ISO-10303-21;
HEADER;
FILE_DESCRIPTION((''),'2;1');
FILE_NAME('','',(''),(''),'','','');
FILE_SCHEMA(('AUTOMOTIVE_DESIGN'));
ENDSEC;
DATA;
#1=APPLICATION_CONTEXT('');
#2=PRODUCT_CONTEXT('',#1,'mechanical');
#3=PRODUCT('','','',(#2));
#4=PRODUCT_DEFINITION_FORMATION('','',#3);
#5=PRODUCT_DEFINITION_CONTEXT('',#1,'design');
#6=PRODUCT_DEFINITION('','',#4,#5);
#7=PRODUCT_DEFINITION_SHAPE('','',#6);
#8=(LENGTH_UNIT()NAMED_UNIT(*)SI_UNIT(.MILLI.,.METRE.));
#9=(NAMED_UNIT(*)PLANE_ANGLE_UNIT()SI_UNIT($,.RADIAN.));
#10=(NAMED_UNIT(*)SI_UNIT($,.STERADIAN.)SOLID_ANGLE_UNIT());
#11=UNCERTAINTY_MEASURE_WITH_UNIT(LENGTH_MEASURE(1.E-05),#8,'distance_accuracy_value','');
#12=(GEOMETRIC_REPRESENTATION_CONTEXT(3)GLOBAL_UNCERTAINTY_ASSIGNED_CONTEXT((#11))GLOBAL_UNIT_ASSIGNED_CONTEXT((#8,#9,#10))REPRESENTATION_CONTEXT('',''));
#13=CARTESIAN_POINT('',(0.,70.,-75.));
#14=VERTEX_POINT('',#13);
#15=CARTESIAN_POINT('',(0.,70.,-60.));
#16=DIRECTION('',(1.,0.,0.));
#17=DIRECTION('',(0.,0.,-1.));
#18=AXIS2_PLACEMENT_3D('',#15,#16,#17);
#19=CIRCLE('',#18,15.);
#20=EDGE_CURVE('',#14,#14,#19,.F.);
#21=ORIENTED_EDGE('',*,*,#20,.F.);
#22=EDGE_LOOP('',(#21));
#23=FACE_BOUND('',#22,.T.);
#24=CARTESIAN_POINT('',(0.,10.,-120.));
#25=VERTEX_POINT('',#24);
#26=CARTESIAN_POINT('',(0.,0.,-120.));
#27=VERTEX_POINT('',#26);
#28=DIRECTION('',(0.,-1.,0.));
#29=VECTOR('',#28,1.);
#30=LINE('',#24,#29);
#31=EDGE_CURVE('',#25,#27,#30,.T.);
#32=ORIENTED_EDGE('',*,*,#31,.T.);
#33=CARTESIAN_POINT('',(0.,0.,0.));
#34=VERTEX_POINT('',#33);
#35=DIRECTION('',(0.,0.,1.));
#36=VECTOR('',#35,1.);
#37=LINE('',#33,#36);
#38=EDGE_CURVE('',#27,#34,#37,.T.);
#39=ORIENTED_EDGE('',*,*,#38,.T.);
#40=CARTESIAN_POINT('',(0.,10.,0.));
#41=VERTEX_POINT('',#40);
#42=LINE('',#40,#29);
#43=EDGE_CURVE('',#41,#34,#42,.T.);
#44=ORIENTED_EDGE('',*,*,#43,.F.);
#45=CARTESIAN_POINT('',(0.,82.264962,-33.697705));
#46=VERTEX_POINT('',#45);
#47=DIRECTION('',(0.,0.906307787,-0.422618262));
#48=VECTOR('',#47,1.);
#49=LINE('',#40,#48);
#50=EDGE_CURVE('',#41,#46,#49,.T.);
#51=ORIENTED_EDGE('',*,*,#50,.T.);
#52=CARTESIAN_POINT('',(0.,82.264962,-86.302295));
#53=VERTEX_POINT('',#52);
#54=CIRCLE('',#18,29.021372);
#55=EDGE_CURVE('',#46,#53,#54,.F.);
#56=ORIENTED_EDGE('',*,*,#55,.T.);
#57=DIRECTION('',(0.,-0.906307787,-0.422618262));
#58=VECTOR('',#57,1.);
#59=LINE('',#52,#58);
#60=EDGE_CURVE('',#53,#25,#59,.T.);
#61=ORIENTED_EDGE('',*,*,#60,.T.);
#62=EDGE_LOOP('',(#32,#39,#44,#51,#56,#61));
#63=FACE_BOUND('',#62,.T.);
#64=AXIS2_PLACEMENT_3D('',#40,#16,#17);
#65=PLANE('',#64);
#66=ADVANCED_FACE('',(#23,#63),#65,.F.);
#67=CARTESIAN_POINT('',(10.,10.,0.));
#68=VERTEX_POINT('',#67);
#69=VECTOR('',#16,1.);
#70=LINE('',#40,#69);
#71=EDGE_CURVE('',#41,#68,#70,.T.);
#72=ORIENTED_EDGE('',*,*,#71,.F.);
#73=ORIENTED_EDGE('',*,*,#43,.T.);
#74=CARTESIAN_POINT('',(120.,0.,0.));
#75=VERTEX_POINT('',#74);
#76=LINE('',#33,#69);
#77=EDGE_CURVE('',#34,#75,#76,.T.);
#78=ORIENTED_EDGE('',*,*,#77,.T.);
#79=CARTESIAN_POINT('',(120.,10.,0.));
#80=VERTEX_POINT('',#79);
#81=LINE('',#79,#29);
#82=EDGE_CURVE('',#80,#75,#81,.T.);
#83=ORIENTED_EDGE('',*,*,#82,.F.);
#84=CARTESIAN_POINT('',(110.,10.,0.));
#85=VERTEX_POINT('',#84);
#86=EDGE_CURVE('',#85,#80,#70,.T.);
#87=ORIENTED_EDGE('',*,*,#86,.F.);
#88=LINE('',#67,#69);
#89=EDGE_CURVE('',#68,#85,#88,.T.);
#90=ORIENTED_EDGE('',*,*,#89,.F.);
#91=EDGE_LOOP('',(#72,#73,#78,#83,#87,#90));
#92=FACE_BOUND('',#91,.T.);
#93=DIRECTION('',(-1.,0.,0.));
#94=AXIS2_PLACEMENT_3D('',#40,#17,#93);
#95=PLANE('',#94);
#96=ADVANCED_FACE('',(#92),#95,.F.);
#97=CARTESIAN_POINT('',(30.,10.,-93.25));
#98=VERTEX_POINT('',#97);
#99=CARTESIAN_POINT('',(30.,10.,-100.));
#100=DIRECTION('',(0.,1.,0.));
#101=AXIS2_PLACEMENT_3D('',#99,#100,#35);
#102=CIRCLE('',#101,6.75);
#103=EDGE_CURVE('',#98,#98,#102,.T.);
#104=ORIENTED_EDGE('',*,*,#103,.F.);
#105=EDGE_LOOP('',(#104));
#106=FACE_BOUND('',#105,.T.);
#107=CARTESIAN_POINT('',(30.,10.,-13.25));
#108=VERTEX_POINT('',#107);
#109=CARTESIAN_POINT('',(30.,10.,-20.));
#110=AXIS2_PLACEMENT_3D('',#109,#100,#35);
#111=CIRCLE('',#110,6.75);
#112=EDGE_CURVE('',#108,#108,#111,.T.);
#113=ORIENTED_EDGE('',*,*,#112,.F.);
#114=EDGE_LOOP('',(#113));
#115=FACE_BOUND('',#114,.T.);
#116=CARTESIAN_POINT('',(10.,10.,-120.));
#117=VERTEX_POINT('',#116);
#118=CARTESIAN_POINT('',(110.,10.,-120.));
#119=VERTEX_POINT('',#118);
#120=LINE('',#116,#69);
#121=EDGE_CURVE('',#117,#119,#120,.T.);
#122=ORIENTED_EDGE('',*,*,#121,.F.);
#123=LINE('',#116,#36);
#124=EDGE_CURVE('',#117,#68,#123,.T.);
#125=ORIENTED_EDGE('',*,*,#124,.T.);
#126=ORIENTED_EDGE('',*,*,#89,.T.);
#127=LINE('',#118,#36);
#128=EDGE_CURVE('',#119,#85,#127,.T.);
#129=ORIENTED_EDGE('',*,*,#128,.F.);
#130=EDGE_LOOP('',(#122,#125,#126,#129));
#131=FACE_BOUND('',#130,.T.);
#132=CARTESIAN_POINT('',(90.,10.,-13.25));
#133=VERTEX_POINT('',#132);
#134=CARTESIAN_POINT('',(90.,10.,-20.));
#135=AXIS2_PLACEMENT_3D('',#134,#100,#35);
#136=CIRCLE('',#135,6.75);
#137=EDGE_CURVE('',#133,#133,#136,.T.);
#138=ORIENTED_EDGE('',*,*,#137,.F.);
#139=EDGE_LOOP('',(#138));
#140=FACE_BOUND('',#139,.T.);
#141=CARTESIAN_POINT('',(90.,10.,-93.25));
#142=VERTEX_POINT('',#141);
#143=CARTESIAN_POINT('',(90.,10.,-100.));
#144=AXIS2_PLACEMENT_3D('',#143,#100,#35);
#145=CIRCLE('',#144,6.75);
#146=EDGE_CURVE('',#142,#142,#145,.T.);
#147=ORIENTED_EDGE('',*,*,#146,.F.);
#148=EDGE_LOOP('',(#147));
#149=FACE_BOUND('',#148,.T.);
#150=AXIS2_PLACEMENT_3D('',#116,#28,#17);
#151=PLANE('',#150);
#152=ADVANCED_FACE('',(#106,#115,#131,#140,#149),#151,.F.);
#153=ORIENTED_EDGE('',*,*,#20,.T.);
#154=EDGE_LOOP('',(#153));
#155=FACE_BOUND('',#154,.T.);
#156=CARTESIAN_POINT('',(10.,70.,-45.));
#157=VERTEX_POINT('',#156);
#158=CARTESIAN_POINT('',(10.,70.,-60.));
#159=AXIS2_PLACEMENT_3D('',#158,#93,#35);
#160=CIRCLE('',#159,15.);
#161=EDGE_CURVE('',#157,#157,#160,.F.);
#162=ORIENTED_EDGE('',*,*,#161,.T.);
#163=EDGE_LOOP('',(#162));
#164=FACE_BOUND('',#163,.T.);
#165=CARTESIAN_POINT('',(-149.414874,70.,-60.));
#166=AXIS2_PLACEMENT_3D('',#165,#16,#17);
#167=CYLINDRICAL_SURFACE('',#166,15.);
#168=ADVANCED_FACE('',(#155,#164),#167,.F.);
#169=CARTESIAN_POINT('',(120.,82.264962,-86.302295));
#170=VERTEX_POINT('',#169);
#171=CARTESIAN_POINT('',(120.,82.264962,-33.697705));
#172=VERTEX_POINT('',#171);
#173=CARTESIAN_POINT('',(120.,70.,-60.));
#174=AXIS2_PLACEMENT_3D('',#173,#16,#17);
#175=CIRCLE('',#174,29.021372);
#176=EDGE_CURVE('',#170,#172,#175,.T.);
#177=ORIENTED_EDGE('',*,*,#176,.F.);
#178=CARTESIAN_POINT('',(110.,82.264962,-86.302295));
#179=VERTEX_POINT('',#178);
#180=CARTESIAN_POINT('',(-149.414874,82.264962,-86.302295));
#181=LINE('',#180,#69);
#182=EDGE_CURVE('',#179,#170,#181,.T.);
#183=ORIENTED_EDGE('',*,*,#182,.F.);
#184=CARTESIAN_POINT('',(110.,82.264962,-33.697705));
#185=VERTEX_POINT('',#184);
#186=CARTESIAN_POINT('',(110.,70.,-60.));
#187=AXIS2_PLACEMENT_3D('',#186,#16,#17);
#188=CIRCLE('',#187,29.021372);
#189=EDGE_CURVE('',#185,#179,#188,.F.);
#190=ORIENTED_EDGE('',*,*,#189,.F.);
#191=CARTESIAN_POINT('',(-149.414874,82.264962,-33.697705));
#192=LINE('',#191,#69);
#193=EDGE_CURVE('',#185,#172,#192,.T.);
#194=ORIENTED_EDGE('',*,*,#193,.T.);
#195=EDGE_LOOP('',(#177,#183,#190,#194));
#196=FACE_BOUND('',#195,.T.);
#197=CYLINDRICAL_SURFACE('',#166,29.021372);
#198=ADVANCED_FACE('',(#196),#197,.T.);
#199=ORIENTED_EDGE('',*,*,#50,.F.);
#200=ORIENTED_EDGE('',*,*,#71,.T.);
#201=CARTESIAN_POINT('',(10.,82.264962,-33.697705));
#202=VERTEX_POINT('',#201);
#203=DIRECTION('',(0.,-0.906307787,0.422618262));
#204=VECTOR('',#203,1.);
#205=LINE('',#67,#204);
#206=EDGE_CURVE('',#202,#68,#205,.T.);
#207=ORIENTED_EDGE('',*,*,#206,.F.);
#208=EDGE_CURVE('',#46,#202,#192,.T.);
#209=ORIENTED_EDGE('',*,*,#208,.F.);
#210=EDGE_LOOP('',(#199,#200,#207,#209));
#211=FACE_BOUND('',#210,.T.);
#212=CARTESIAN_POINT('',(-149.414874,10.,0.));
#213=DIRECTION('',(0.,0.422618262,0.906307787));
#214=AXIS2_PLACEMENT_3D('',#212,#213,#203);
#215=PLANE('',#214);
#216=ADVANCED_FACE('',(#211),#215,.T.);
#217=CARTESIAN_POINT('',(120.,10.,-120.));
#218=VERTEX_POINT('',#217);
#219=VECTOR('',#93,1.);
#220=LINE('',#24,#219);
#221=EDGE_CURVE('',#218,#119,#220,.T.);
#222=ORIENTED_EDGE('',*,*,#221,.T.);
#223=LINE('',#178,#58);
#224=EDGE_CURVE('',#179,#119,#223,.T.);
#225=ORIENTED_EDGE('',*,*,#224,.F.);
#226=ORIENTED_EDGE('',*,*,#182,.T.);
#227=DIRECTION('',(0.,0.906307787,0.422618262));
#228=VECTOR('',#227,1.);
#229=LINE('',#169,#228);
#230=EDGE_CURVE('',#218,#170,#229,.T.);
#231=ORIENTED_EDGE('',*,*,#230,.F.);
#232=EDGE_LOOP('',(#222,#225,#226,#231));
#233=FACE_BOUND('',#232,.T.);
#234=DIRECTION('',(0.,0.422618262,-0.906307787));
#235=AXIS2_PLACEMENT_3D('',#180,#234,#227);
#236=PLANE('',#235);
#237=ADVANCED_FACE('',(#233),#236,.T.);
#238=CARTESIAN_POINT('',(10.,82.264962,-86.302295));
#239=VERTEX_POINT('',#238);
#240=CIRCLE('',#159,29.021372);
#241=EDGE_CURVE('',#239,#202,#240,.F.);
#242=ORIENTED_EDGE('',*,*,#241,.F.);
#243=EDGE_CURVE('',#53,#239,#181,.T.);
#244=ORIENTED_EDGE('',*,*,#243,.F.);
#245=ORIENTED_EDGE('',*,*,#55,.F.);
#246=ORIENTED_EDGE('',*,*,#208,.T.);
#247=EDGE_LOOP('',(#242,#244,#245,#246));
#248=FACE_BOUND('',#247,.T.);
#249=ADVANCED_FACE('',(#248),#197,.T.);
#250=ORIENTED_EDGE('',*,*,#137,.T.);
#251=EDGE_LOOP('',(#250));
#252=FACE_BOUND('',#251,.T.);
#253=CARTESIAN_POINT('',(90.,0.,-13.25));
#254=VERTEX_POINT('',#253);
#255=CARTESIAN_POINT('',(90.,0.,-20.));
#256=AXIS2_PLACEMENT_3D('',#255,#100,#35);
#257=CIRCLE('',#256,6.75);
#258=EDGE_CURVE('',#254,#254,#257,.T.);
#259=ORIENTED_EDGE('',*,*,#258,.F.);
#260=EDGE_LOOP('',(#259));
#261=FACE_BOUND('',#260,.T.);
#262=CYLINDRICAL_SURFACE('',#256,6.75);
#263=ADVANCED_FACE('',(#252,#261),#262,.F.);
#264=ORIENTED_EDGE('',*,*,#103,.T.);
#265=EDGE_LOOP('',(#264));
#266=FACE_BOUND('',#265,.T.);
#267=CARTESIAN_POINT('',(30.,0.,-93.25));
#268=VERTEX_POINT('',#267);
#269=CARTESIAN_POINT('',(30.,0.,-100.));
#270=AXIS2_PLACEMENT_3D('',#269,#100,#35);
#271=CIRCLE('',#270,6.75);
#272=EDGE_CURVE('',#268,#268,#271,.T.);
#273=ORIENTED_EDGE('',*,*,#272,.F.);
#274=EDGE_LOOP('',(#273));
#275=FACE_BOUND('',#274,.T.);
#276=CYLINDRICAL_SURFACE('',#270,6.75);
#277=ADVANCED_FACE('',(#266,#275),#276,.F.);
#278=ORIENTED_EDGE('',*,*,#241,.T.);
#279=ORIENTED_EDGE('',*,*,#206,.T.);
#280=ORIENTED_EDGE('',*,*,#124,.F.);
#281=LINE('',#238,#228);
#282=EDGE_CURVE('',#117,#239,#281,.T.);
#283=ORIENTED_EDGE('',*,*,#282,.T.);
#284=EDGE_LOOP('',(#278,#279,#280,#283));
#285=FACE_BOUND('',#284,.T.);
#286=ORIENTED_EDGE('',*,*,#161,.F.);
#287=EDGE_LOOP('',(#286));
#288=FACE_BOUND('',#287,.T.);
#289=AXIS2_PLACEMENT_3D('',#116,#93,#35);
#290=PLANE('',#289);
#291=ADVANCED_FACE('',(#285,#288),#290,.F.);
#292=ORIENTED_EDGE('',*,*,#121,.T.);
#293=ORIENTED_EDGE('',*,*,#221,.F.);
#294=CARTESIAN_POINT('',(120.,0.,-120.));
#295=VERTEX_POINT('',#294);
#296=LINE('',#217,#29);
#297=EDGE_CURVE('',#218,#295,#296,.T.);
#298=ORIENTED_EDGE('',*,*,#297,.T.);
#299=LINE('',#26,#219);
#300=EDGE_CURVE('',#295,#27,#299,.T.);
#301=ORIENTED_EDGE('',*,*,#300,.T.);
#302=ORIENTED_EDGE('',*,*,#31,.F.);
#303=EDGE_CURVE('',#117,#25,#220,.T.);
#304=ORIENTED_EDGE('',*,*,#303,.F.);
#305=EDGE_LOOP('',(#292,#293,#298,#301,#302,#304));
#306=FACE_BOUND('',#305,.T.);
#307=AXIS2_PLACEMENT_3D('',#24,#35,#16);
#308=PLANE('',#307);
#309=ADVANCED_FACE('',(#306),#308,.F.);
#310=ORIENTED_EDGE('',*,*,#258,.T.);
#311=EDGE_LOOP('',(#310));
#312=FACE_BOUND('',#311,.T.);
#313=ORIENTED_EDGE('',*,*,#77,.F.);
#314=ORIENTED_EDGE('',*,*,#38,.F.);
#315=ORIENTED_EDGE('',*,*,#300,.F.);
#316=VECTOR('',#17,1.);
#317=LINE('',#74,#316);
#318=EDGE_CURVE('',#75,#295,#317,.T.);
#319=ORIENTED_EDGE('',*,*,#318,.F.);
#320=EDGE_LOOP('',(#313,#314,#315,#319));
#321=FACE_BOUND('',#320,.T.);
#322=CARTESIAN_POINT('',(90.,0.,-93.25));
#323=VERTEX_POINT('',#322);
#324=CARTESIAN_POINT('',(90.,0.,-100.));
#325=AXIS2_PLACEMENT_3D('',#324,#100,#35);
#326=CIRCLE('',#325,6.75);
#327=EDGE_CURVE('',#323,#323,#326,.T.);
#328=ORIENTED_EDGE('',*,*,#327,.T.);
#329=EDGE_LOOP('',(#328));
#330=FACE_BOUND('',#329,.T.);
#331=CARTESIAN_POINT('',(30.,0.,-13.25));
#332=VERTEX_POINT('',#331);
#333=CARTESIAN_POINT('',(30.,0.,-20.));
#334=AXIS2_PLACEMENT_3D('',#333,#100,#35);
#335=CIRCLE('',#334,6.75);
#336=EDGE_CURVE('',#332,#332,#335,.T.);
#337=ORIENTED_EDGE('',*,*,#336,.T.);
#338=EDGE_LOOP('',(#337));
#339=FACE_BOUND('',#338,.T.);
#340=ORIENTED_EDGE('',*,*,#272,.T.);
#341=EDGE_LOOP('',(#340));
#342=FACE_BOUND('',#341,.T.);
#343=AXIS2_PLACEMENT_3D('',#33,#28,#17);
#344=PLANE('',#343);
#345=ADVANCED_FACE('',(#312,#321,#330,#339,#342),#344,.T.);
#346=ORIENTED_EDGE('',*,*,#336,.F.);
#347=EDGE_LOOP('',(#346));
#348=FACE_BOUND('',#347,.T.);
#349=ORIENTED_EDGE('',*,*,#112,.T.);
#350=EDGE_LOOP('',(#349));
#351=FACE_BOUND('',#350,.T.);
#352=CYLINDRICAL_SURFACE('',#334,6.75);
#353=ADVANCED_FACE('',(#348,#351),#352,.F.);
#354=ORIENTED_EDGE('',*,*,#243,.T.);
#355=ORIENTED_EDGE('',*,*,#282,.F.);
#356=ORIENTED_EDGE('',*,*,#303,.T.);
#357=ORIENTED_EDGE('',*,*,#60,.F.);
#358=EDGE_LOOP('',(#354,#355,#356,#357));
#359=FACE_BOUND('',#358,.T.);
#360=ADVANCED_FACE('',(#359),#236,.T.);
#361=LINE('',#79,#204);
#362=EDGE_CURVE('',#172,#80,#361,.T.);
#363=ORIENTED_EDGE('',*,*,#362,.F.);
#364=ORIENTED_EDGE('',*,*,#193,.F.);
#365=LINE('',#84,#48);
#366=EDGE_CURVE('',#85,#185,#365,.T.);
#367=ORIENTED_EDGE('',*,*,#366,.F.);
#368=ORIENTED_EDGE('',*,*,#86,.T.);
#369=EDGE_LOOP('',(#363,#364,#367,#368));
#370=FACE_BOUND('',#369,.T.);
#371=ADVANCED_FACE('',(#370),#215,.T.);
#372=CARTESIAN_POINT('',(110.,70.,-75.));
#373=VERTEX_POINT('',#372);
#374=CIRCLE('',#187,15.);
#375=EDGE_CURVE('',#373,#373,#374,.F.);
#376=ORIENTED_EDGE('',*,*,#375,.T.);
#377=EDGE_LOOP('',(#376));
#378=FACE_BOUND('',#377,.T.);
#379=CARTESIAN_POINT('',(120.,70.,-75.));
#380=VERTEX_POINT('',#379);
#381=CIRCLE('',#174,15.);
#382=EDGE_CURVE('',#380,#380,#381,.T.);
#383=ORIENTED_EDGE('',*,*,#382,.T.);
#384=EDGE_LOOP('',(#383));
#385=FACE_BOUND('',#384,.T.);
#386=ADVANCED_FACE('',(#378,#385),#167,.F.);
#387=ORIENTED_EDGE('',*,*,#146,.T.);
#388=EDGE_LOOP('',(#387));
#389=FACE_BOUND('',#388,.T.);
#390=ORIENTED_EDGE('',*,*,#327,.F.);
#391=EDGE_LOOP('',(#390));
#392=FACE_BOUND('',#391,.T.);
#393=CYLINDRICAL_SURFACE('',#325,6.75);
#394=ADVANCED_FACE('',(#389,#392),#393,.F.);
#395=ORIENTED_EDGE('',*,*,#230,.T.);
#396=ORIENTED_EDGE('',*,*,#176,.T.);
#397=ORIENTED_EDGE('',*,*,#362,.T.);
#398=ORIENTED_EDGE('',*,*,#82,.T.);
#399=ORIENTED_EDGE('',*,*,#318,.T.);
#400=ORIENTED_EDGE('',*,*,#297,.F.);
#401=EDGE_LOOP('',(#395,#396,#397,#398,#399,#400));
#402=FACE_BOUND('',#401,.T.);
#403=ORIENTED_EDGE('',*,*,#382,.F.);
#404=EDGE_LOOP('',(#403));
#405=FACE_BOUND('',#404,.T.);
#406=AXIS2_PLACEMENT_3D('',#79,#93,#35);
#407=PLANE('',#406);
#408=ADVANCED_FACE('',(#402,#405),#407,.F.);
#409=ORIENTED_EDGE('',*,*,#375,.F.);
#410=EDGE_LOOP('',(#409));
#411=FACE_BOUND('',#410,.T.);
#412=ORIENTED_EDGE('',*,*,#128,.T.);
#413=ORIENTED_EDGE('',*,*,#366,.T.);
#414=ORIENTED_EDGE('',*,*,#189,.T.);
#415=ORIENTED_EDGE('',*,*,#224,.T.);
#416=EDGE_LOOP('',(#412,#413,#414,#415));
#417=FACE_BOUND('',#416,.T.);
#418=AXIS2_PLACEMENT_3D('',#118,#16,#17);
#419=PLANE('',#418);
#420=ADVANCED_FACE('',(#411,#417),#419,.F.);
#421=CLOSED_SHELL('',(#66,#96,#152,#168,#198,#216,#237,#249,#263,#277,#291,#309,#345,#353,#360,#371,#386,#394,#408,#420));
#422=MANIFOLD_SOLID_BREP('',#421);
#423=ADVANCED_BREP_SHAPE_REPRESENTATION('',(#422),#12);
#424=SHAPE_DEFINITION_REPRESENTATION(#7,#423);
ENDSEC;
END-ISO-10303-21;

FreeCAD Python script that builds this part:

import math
import FreeCAD as App
import Part
import Sketcher

V = App.Vector
Q = App.Units.Quantity


def add_polygon(sketch, points):
    """Adds a closed chain of lines whose ends are joined by coincident constraints."""
    first, n = sketch.GeometryCount, len(points)
    for a, b in zip(points, points[1:] + points[:1]):
        sketch.addGeometry(Part.LineSegment(App.Vector(*a, 0), App.Vector(*b, 0)), False)
    for i in range(n):
        sketch.addConstraint(Sketcher.Constraint("Coincident", first + i, 2, first + (i + 1) % n, 1))

doc = App.newDocument("Part")
body = doc.addObject("PartDesign::Body", "Body")

sketch1 = body.newObject("Sketcher::SketchObject", "Sketch")
sketch1.AttachmentSupport = (doc.getObject("XZ_Plane"), [""])
sketch1.MapMode = "FlatFace"
add_polygon(sketch1, [(0, -120), (0, 0), (120, 0), (120, -120)])
sketch1.addConstraint([
    Sketcher.Constraint("Vertical", 0),
    Sketcher.Constraint("Horizontal", 1),
    Sketcher.Constraint("Vertical", 2),
    Sketcher.Constraint("Horizontal", 3),
    Sketcher.Constraint("Coincident", 0, 2, -1, 1),
    Sketcher.Constraint("Equal", 3, 0),
    Sketcher.Constraint("DistanceX", 1, 1, 1, 2, Q("120 mm")),
])
pad1 = body.newObject("PartDesign::Pad", "Pad")
pad1.Profile = sketch1
pad1.Length = 10
pad1.Reversed = True

sketch2 = body.newObject("Sketcher::SketchObject", "Sketch001")
sketch2.AttachmentSupport = (doc.getObject("YZ_Plane"), [""])
sketch2.MapMode = "FlatFace"
sketch2.AttachmentOffset = App.Placement(V(0, 0, 120), App.Rotation())
sketch2.addGeometry([
    Part.LineSegment(V(10, -120, 0), V(82, -86, 0)),
    Part.ArcOfCircle(Part.Circle(V(70, -60, 0), V(0, 0, 1), 29), math.radians(-65), math.radians(65)),
    Part.LineSegment(V(82, -34, 0), V(10, 0, 0)),
    Part.LineSegment(V(10, 0, 0), V(10, -120, 0)),
    Part.Circle(V(70, -60, 0), V(0, 0, 1), 15),
], False)
sketch2.addConstraint([
    Sketcher.Constraint("Tangent", 0, 2, 1, 1),
    Sketcher.Constraint("Tangent", 1, 2, 2, 1),
    Sketcher.Constraint("Coincident", 2, 2, 3, 1),
    Sketcher.Constraint("Coincident", 3, 2, 0, 1),
    Sketcher.Constraint("Vertical", 3),
    Sketcher.Constraint("Coincident", 4, 3, 1, 3),
    Sketcher.Constraint("PointOnObject", 2, 2, -1),
    Sketcher.Constraint("Vertical", 0, 2, 1, 2),
    Sketcher.Constraint("Diameter", 4, Q("30 mm")),
    Sketcher.Constraint("DistanceY", 3, 2, 3, 1, Q("120 mm")),
    Sketcher.Constraint("Angle", 0, Q("25 deg")),
    Sketcher.Constraint("DistanceX", -1, 1, 1, 3, Q("70 mm")),
    Sketcher.Constraint("DistanceX", -1, 1, 2, 2, Q("10 mm")),
])
pad2 = body.newObject("PartDesign::Pad", "Pad001")
pad2.Profile = sketch2
pad2.Length = 120
pad2.Reversed = True

sketch3 = body.newObject("Sketcher::SketchObject", "Sketch002")
sketch3.AttachmentSupport = (doc.getObject("XY_Plane"), [""])
sketch3.MapMode = "FlatFace"
add_polygon(sketch3, [(10, 132), (10, 10), (110, 10), (110, 132)])
sketch3.addConstraint([
    Sketcher.Constraint("Vertical", 0),
    Sketcher.Constraint("Horizontal", 1),
    Sketcher.Constraint("Vertical", 2),
    Sketcher.Constraint("Horizontal", 3),
    Sketcher.Constraint("DistanceX", 1, 1, 1, 2, Q("100 mm")),
    Sketcher.Constraint("DistanceX", -1, 1, 0, 2, Q("10 mm")),
    Sketcher.Constraint("DistanceY", -1, 1, 0, 2, Q("10 mm")),
    Sketcher.Constraint("DistanceY", 0, 2, 0, 1, Q("122.401823 mm")),
])
pocket1 = body.newObject("PartDesign::Pocket", "Pocket")
pocket1.Profile = sketch3
pocket1.Type = "ThroughAll"

sketch4 = body.newObject("Sketcher::SketchObject", "Sketch003")
sketch4.AttachmentSupport = (doc.getObject("XZ_Plane"), [""])
sketch4.MapMode = "FlatFace"
sketch4.AttachmentOffset = App.Placement(V(0, 0, -10), App.Rotation())
sketch4.addGeometry([
    Part.Circle(V(30, -20, 0), V(0, 0, 1), 7),
    Part.Circle(V(30, -100, 0), V(0, 0, 1), 7),
    Part.Circle(V(90, -100, 0), V(0, 0, 1), 7),
    Part.Circle(V(90, -20, 0), V(0, 0, 1), 7),
], False)
sketch4.addConstraint([
    Sketcher.Constraint("Equal", 0, 1),
    Sketcher.Constraint("Equal", 1, 2),
    Sketcher.Constraint("Equal", 2, 3),
    Sketcher.Constraint("Horizontal", 1, 3, 2, 3),
    Sketcher.Constraint("Horizontal", 0, 3, 3, 3),
    Sketcher.Constraint("Vertical", 0, 3, 1, 3),
    Sketcher.Constraint("Vertical", 2, 3, 3, 3),
    Sketcher.Constraint("Diameter", 0, Q("13.5 mm")),
    Sketcher.Constraint("DistanceX", -1, 1, 0, 3, Q("30 mm")),
    Sketcher.Constraint("DistanceY", 0, 3, -1, 1, Q("20 mm")),
    Sketcher.Constraint("DistanceY", 1, 3, -1, 1, Q("100 mm")),
    Sketcher.Constraint("DistanceX", -1, 1, 2, 3, Q("90 mm")),
])
pocket2 = body.newObject("PartDesign::Pocket", "Pocket001")
pocket2.Profile = sketch4
pocket2.Length = 10
pocket2.Reversed = True

doc.recompute()
